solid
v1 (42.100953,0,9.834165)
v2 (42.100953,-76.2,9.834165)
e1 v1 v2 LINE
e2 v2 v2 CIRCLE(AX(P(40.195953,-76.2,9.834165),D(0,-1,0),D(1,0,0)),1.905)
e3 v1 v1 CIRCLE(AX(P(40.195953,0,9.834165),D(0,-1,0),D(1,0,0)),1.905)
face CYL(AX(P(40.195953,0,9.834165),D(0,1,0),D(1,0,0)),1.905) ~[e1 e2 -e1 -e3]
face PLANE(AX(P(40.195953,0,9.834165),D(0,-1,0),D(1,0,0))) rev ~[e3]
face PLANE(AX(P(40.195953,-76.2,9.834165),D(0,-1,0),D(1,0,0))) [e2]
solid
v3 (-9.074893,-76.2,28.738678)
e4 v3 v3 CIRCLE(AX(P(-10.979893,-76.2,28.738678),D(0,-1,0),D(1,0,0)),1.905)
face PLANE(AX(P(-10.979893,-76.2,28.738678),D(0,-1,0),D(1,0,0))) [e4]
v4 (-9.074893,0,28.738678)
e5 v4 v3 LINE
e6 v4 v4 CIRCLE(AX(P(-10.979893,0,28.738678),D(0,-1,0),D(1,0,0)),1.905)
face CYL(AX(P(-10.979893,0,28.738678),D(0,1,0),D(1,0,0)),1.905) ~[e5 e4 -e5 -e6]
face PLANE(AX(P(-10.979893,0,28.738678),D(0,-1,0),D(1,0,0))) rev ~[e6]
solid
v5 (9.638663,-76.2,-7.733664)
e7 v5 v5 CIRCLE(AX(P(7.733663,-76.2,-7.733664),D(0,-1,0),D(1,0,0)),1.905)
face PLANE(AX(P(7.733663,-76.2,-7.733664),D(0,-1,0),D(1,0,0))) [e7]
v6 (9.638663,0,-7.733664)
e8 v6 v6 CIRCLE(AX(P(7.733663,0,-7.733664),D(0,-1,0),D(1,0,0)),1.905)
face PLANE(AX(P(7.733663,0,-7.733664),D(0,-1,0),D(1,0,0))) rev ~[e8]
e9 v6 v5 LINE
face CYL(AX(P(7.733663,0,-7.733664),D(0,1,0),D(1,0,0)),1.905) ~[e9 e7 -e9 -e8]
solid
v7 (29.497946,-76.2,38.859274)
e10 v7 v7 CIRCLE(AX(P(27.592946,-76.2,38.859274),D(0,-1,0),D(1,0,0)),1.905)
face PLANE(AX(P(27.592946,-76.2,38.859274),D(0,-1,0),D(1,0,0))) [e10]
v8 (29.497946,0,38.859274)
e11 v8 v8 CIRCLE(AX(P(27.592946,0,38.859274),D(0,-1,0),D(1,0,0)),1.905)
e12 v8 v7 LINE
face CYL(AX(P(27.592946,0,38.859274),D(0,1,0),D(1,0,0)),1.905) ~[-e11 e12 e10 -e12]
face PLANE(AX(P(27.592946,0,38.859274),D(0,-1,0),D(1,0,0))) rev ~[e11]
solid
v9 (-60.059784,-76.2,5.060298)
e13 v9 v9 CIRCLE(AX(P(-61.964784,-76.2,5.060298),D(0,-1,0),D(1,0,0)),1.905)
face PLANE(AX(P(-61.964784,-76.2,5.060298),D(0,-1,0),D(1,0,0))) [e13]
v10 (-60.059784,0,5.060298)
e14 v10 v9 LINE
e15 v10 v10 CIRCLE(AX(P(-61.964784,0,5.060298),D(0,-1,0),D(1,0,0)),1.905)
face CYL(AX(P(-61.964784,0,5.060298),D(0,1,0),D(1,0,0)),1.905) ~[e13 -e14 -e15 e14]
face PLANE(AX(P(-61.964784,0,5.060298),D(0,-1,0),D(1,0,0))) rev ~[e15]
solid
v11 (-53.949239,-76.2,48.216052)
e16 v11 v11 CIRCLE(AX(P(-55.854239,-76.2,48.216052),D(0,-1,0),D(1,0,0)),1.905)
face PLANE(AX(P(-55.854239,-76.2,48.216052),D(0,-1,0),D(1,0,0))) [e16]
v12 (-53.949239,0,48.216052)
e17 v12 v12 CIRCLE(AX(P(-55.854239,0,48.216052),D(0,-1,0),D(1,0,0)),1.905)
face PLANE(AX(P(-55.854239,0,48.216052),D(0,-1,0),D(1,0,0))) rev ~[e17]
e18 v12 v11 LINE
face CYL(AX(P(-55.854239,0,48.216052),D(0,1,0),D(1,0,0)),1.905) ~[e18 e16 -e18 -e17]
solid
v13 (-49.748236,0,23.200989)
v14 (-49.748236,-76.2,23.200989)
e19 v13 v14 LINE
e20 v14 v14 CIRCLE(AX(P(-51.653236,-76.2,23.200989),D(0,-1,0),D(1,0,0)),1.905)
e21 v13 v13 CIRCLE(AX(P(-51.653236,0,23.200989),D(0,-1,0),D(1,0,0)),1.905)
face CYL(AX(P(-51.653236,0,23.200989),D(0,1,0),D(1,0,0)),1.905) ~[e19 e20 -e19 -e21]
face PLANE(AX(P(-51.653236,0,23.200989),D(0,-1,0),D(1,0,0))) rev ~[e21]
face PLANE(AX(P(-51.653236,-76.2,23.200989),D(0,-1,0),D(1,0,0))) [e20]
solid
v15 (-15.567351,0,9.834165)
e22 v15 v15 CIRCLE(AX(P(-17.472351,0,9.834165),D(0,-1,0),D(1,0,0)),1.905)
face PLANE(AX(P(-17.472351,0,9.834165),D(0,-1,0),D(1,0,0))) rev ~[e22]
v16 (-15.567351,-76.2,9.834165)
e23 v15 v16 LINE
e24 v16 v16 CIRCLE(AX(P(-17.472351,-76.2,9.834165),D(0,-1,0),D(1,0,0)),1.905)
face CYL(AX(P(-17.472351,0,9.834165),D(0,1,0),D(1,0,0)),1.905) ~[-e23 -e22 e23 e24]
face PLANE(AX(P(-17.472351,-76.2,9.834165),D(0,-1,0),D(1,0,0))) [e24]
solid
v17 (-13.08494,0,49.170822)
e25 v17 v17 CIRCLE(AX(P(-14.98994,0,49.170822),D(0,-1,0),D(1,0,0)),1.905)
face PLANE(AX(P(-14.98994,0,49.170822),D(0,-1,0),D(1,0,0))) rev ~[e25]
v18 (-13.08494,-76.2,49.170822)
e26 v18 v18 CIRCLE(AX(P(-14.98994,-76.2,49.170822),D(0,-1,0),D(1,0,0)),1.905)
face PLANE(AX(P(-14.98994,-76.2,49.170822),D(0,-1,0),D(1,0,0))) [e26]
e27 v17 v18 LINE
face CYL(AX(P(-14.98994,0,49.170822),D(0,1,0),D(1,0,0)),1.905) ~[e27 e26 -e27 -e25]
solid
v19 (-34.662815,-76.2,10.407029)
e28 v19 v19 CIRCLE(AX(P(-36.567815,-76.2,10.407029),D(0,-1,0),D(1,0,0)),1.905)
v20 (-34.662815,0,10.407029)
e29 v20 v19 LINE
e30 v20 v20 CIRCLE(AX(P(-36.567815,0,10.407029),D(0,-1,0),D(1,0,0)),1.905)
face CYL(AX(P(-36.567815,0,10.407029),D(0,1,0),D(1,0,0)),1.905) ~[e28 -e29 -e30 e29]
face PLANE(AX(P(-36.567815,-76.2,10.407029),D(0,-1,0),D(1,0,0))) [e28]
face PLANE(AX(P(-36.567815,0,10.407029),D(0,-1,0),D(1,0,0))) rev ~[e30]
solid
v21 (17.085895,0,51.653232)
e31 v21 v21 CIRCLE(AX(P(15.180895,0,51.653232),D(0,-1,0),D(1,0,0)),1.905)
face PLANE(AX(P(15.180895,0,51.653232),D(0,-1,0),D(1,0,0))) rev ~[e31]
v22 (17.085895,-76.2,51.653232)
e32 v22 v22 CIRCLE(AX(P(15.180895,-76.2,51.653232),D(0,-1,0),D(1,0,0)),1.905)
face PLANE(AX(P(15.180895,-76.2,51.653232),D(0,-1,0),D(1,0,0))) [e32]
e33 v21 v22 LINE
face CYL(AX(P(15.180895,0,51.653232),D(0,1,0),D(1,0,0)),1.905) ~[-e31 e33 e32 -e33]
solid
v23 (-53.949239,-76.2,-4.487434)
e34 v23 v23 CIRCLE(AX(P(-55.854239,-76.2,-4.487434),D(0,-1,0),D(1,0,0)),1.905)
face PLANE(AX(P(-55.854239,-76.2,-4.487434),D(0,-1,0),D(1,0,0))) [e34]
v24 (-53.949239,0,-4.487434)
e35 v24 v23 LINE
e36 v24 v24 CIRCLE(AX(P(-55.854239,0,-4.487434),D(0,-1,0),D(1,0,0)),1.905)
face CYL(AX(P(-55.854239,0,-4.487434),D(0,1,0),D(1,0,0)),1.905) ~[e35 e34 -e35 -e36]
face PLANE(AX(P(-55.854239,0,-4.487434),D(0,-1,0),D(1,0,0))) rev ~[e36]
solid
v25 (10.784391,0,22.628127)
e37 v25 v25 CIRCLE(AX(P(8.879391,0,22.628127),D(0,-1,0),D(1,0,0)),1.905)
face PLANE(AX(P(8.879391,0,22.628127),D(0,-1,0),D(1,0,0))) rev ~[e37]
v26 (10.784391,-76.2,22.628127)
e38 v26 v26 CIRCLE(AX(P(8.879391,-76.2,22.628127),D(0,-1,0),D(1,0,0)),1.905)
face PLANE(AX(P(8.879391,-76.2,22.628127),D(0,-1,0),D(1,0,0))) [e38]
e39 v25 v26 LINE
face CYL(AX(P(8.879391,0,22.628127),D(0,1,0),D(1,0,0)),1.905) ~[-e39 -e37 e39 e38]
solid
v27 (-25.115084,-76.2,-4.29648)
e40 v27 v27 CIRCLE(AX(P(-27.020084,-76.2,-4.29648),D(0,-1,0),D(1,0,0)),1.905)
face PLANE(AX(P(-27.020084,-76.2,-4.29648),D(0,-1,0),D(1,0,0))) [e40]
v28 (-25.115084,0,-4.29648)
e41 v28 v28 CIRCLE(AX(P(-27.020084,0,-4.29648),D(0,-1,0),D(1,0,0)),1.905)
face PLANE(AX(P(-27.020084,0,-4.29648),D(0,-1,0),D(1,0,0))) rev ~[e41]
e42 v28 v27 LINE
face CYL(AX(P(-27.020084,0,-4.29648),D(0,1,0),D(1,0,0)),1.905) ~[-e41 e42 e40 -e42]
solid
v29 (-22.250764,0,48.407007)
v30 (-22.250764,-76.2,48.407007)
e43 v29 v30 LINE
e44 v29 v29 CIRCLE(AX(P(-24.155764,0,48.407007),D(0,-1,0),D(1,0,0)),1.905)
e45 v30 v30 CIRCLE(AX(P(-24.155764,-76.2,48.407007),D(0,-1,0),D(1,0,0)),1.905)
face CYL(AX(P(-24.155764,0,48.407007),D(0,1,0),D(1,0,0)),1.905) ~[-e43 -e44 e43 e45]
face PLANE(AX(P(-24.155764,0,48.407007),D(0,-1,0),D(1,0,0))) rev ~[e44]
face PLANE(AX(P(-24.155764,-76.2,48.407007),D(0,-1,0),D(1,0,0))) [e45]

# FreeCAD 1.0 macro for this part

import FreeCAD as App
import Part
import Sketcher
Q = App.Units.Quantity

doc = App.newDocument("Part")
body = doc.addObject("PartDesign::Body", "Body")
body.AllowCompound = True

sketch1 = body.newObject("Sketcher::SketchObject", "Sketch")
sketch1.AttachmentSupport = (doc.getObject("XZ_Plane"), [""])
sketch1.MapMode = "FlatFace"
sketch1.addGeometry([
    Part.Circle(App.Vector(-17.472351, 9.834165, 0), App.Vector(0, 0, 1), 1.905),
    Part.Circle(App.Vector(-10.979893, 28.738678, 0), App.Vector(0, 0, 1), 1.905),
    Part.Circle(App.Vector(-14.98994, 49.170822, 0), App.Vector(0, 0, 1), 1.905),
    Part.Circle(App.Vector(-24.155764, 48.407007, 0), App.Vector(0, 0, 1), 1.905),
    Part.Circle(App.Vector(-55.854239, 48.216052, 0), App.Vector(0, 0, 1), 1.905),
    Part.Circle(App.Vector(-51.653236, 23.200989, 0), App.Vector(0, 0, 1), 1.905),
    Part.Circle(App.Vector(-61.964784, 5.060298, 0), App.Vector(0, 0, 1), 1.905),
    Part.Circle(App.Vector(-55.854239, -4.487434, 0), App.Vector(0, 0, 1), 1.905),
    Part.Circle(App.Vector(-36.567815, 10.407029, 0), App.Vector(0, 0, 1), 1.905),
    Part.Circle(App.Vector(-27.020084, -4.29648, 0), App.Vector(0, 0, 1), 1.905),
    Part.Circle(App.Vector(7.733663, -7.733664, 0), App.Vector(0, 0, 1), 1.905),
    Part.Circle(App.Vector(8.879391, 22.628127, 0), App.Vector(0, 0, 1), 1.905),
    Part.Circle(App.Vector(15.180895, 51.653232, 0), App.Vector(0, 0, 1), 1.905),
    Part.Circle(App.Vector(27.592946, 38.859274, 0), App.Vector(0, 0, 1), 1.905),
    Part.Circle(App.Vector(40.195953, 9.834165, 0), App.Vector(0, 0, 1), 1.905),
], False)
sketch1.addConstraint([
    Sketcher.Constraint("Equal", 0, 1),
    Sketcher.Constraint("Equal", 1, 2),
    Sketcher.Constraint("Equal", 2, 3),
    Sketcher.Constraint("Equal", 3, 4),
    Sketcher.Constraint("Equal", 4, 5),
    Sketcher.Constraint("Equal", 5, 6),
    Sketcher.Constraint("Equal", 6, 7),
    Sketcher.Constraint("Equal", 7, 8),
    Sketcher.Constraint("Equal", 8, 9),
    Sketcher.Constraint("Equal", 9, 10),
    Sketcher.Constraint("Equal", 10, 11),
    Sketcher.Constraint("Equal", 11, 12),
    Sketcher.Constraint("Equal", 12, 13),
    Sketcher.Constraint("Equal", 13, 14),
    Sketcher.Constraint("Horizontal", 0, 3, 14, 3),
    Sketcher.Constraint("Vertical", 4, 3, 7, 3),
    Sketcher.Constraint("Diameter", 0, Q("0.15 in")),
    Sketcher.Constraint("DistanceY", -1, 1, 6, 3, 5.060298),
    Sketcher.Constraint("DistanceX", 4, 3, 2, 3, 40.864299),
    Sketcher.Constraint("DistanceY", 7, 3, 0, 3, 14.321599),
    Sketcher.Constraint("DistanceX", 6, 3, 9, 3, 34.9447),
    Sketcher.Constraint("DistanceX", 0, 3, -1, 1, 17.472351),
    Sketcher.Constraint("DistanceY", -1, 1, 1, 3, 28.738678),
    Sketcher.Constraint("DistanceX", 2, 3, -1, 1, 14.98994),
    Sketcher.Constraint("DistanceY", -1, 1, 4, 3, 48.216052),
    Sketcher.Constraint("DistanceY", -1, 1, 5, 3, 23.200989),
    Sketcher.Constraint("DistanceY", -1, 1, 8, 3, 10.407029),
    Sketcher.Constraint("DistanceY", 9, 3, -1, 1, 4.29648),
    Sketcher.Constraint("DistanceX", -1, 1, 11, 3, 8.879391),
    Sketcher.Constraint("DistanceX", 3, 3, 1, 3, 13.175871),
    Sketcher.Constraint("DistanceY", 1, 3, 3, 3, 19.668329),
    Sketcher.Constraint("DistanceY", 4, 3, 2, 3, 0.95477),
    Sketcher.Constraint("DistanceX", 5, 3, 3, 3, 27.497472),
    Sketcher.Constraint("DistanceX", 6, 3, 5, 3, 10.311548),
    Sketcher.Constraint("DistanceX", 5, 3, 8, 3, 15.085421),
    Sketcher.Constraint("DistanceY", 10, 3, 0, 3, 17.567829),
    Sketcher.Constraint("DistanceY", 10, 3, 1, 3, 36.472342),
    Sketcher.Constraint("DistanceX", 8, 3, 10, 3, 44.301478),
    Sketcher.Constraint("DistanceY", 11, 3, 1, 3, 6.110551),
    Sketcher.Constraint("DistanceX", 10, 3, 11, 3, 1.145728),
    Sketcher.Constraint("DistanceY", 2, 3, 12, 3, 2.48241),
    Sketcher.Constraint("DistanceX", 1, 3, 12, 3, 26.160788),
    Sketcher.Constraint("DistanceX", 12, 3, 13, 3, 12.412051),
    Sketcher.Constraint("DistanceY", 13, 3, 12, 3, 12.793958),
    Sketcher.Constraint("DistanceX", 10, 3, 14, 3, 32.46229),
])
pad1 = body.newObject("PartDesign::Pad", "Pad")
pad1.Profile = sketch1
pad1.Length = Q("3 in")

doc.recompute()
